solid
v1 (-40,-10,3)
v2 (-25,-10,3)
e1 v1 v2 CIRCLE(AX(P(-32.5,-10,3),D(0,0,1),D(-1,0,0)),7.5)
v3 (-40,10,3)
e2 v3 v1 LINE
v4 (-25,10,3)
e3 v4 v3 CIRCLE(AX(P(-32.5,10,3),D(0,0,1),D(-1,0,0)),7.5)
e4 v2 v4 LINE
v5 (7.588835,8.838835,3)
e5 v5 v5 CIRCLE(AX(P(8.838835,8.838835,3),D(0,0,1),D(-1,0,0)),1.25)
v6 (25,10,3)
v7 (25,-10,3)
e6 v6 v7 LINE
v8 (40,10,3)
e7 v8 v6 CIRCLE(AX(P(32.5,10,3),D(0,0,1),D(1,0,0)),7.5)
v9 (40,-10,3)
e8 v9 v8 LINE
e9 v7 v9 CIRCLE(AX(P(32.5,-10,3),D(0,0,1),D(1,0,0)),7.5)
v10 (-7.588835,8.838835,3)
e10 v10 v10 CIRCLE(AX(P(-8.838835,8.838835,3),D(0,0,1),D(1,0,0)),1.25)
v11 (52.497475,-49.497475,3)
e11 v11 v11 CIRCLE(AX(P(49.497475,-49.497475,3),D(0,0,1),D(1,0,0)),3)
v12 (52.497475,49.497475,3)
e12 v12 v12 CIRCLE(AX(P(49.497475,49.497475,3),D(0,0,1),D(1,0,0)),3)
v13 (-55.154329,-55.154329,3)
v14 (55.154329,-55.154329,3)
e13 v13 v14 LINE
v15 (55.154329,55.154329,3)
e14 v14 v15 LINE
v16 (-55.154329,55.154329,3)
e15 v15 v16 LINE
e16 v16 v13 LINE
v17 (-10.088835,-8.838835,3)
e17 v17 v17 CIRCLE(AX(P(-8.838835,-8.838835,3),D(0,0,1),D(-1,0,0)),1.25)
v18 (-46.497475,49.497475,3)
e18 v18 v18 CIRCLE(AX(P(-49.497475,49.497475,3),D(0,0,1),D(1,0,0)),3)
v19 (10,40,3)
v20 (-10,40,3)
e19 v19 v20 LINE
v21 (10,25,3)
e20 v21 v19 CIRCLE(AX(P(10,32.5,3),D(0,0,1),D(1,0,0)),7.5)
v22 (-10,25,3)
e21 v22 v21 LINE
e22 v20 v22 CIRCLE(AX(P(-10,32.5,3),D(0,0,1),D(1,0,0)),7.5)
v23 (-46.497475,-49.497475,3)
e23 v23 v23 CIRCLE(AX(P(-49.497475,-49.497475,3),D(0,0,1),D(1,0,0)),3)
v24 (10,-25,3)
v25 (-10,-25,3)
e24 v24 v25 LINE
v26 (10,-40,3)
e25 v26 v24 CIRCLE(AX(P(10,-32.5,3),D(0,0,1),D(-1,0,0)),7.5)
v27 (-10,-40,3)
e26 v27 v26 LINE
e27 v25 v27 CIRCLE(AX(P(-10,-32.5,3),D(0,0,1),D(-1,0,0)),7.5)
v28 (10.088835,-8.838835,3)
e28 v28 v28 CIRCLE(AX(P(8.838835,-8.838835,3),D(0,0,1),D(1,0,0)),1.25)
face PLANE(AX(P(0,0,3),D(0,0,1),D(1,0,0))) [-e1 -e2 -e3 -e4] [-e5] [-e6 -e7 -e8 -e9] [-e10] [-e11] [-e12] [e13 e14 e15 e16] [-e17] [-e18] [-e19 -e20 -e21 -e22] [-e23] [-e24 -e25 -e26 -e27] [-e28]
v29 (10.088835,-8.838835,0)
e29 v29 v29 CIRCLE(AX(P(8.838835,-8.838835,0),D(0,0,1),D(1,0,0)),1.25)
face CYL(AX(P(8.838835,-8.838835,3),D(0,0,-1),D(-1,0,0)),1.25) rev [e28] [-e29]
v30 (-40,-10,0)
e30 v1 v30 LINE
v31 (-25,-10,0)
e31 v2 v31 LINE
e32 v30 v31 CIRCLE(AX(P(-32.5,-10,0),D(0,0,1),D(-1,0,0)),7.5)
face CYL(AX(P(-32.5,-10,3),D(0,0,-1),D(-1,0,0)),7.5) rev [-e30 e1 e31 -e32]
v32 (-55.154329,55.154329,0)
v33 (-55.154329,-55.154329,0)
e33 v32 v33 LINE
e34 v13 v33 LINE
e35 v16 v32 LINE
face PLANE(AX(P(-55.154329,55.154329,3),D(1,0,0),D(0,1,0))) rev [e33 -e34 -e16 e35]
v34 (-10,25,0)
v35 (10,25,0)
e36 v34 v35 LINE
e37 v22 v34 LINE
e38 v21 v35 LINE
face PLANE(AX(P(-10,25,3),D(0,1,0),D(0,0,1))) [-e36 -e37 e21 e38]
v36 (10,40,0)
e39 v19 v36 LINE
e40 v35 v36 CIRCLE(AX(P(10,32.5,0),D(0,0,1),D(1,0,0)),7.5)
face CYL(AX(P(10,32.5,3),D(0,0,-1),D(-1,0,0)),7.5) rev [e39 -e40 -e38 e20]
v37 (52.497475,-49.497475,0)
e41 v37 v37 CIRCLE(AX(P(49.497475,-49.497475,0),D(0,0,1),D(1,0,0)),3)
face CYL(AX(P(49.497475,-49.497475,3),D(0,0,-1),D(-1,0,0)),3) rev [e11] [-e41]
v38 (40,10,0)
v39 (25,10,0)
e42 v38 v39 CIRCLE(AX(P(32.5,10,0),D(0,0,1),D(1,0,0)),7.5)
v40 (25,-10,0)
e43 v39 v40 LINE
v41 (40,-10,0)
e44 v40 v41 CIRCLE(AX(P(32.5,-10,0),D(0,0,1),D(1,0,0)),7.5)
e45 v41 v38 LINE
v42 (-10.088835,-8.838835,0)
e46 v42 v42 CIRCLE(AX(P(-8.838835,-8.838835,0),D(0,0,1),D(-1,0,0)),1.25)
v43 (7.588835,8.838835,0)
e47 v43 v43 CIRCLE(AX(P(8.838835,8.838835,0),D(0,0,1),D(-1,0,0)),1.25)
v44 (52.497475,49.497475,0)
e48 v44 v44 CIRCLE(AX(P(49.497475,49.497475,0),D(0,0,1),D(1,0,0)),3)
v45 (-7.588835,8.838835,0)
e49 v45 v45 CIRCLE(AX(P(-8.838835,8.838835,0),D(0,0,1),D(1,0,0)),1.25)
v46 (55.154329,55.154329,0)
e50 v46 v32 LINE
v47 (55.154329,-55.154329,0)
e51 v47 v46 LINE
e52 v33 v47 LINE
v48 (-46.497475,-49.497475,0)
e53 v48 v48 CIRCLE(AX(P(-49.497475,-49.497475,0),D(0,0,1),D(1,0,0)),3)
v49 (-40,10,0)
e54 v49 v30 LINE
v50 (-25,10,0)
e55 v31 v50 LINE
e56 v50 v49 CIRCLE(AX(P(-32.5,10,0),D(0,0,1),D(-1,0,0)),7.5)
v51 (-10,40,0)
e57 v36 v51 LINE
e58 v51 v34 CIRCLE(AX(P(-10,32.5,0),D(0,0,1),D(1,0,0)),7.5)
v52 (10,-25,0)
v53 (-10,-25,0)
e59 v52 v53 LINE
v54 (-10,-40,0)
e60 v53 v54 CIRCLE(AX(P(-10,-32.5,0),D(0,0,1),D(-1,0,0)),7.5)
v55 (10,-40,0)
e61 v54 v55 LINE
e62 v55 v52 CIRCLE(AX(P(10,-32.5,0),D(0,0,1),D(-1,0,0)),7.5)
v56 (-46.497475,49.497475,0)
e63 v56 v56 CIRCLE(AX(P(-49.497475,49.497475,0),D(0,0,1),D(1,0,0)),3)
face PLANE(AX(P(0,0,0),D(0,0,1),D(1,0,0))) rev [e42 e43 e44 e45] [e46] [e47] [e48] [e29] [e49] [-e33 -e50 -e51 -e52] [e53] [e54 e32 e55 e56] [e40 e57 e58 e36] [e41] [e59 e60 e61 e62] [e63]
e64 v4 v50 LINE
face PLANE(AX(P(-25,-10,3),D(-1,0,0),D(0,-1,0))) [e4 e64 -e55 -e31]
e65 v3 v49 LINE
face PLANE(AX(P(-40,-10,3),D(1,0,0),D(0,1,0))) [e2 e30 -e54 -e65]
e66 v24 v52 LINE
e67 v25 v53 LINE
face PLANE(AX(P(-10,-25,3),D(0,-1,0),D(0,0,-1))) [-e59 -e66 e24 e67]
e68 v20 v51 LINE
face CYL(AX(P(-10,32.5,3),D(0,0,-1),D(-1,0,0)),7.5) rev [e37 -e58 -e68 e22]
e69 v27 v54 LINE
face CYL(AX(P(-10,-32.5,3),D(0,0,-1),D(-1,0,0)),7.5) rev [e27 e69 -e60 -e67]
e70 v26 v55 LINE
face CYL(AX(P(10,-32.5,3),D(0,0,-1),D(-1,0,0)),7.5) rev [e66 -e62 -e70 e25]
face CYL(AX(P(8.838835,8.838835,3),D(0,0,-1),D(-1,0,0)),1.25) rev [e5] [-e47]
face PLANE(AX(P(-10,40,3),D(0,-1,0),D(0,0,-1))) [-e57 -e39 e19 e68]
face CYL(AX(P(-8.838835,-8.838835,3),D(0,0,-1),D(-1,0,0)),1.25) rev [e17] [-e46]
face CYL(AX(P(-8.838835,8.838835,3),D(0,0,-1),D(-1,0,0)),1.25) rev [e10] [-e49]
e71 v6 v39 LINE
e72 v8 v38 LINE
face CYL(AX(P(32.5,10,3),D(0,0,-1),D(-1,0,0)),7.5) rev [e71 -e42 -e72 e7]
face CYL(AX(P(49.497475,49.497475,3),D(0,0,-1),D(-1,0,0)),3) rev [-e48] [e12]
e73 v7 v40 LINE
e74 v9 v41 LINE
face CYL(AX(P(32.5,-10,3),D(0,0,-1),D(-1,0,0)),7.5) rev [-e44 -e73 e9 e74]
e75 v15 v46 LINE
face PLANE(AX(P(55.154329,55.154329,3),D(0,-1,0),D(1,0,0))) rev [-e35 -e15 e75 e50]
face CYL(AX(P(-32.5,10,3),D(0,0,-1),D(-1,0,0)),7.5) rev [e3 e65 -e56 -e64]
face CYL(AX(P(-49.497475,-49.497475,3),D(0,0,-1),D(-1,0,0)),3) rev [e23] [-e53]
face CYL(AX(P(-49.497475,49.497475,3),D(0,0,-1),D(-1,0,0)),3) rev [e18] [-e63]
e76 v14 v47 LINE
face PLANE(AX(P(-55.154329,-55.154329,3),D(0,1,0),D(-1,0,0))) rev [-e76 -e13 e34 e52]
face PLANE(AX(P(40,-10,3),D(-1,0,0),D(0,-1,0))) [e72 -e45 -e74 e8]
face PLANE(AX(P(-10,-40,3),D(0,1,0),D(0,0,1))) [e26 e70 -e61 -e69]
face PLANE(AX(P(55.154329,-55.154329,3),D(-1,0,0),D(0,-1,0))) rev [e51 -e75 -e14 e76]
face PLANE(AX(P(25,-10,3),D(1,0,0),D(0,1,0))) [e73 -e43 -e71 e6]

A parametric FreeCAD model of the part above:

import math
import FreeCAD as App
import Part
import Sketcher

doc = App.newDocument("Part")
body = doc.addObject("PartDesign::Body", "Body")

sketch1 = body.newObject("Sketcher::SketchObject", "Sketch")
sketch1.AttachmentSupport = (doc.getObject("XY_Plane"), [""])
sketch1.MapMode = "FlatFace"
sketch1.addGeometry([
    Part.LineSegment(App.Vector(-55.2, 55.2, 0), App.Vector(-55.2, -55.2, 0)),
    Part.LineSegment(App.Vector(-55.2, -55.2, 0), App.Vector(55.2, -55.2, 0)),
    Part.LineSegment(App.Vector(55.2, -55.2, 0), App.Vector(55.2, 55.2, 0)),
    Part.LineSegment(App.Vector(55.2, 55.2, 0), App.Vector(-55.2, 55.2, 0)),
    Part.Circle(App.Vector(-49.5, -49.5, 0), App.Vector(0, 0, 1), 3),
    Part.Circle(App.Vector(-8.8, -8.8, 0), App.Vector(0, 0, 1), 1.2),
    Part.LineSegment(App.Vector(10, -40, 0), App.Vector(-10, -40, 0)),
    Part.ArcOfCircle(Part.Circle(App.Vector(-10, -32.5, 0), App.Vector(0, 0, 1), 7.5), math.radians(90), math.radians(270)),
    Part.LineSegment(App.Vector(-10, -25, 0), App.Vector(10, -25, 0)),
    Part.ArcOfCircle(Part.Circle(App.Vector(10, -32.5, 0), App.Vector(0, 0, 1), 7.5), math.radians(-90), math.radians(90)),
    Part.Circle(App.Vector(49.5, -49.5, 0), App.Vector(0, 0, 1), 3),
    Part.Circle(App.Vector(8.8, -8.8, 0), App.Vector(0, 0, 1), 1.2),
    Part.LineSegment(App.Vector(-25, 10, 0), App.Vector(-25, -10, 0)),
    Part.ArcOfCircle(Part.Circle(App.Vector(-32.5, -10, 0), App.Vector(0, 0, 1), 7.5), math.radians(180), math.radians(360)),
    Part.LineSegment(App.Vector(-40, -10, 0), App.Vector(-40, 10, 0)),
    Part.ArcOfCircle(Part.Circle(App.Vector(-32.5, 10, 0), App.Vector(0, 0, 1), 7.5), math.radians(0), math.radians(180)),
    Part.Circle(App.Vector(-8.8, 8.8, 0), App.Vector(0, 0, 1), 1.2),
    Part.Circle(App.Vector(-49.5, 49.5, 0), App.Vector(0, 0, 1), 3),
    Part.Circle(App.Vector(8.8, 8.8, 0), App.Vector(0, 0, 1), 1.2),
    Part.ArcOfCircle(Part.Circle(App.Vector(32.5, -10, 0), App.Vector(0, 0, 1), 7.5), math.radians(180), math.radians(360)),
    Part.LineSegment(App.Vector(25, -10, 0), App.Vector(25, 10, 0)),
    Part.ArcOfCircle(Part.Circle(App.Vector(32.5, 10, 0), App.Vector(0, 0, 1), 7.5), math.radians(0), math.radians(180)),
    Part.LineSegment(App.Vector(40, 10, 0), App.Vector(40, -10, 0)),
    Part.ArcOfCircle(Part.Circle(App.Vector(-10, 32.5, 0), App.Vector(0, 0, 1), 7.5), math.radians(90), math.radians(270)),
    Part.LineSegment(App.Vector(-10, 40, 0), App.Vector(10, 40, 0)),
    Part.ArcOfCircle(Part.Circle(App.Vector(10, 32.5, 0), App.Vector(0, 0, 1), 7.5), math.radians(-90), math.radians(90)),
    Part.LineSegment(App.Vector(10, 25, 0), App.Vector(-10, 25, 0)),
    Part.Circle(App.Vector(49.5, 49.5, 0), App.Vector(0, 0, 1), 3),
], False)
sketch1.addConstraint([
    Sketcher.Constraint("Coincident", 0, 2, 1, 1),
    Sketcher.Constraint("Coincident", 1, 2, 2, 1),
    Sketcher.Constraint("Coincident", 2, 2, 3, 1),
    Sketcher.Constraint("Coincident", 3, 2, 0, 1),
    Sketcher.Constraint("Tangent", 6, 2, 7, 2),
    Sketcher.Constraint("Tangent", 7, 1, 8, 1),
    Sketcher.Constraint("Tangent", 8, 2, 9, 2),
    Sketcher.Constraint("Tangent", 9, 1, 6, 1),
    Sketcher.Constraint("Tangent", 12, 2, 13, 2),
    Sketcher.Constraint("Tangent", 13, 1, 14, 1),
    Sketcher.Constraint("Tangent", 14, 2, 15, 2),
    Sketcher.Constraint("Tangent", 15, 1, 12, 1),
    Sketcher.Constraint("Tangent", 19, 1, 20, 1),
    Sketcher.Constraint("Tangent", 20, 2, 21, 2),
    Sketcher.Constraint("Tangent", 21, 1, 22, 1),
    Sketcher.Constraint("Tangent", 22, 2, 19, 2),
    Sketcher.Constraint("Tangent", 23, 1, 24, 1),
    Sketcher.Constraint("Tangent", 24, 2, 25, 2),
    Sketcher.Constraint("Tangent", 25, 1, 26, 1),
    Sketcher.Constraint("Tangent", 26, 2, 23, 2),
    Sketcher.Constraint("Vertical", 0),
    Sketcher.Constraint("Horizontal", 1),
    Sketcher.Constraint("Vertical", 2),
    Sketcher.Constraint("Horizontal", 3),
    Sketcher.Constraint("Horizontal", 6),
    Sketcher.Constraint("Horizontal", 8),
    Sketcher.Constraint("Vertical", 12),
    Sketcher.Constraint("Vertical", 14),
    Sketcher.Constraint("Vertical", 20),
    Sketcher.Constraint("Vertical", 22),
    Sketcher.Constraint("Horizontal", 24),
    Sketcher.Constraint("Horizontal", 26),
    Sketcher.Constraint("Equal", 4, 10),
    Sketcher.Constraint("Equal", 5, 11),
    Sketcher.Constraint("Equal", 9, 13),
    Sketcher.Constraint("Equal", 11, 16),
    Sketcher.Constraint("Equal", 10, 17),
    Sketcher.Constraint("Equal", 16, 18),
    Sketcher.Constraint("Equal", 15, 19),
    Sketcher.Constraint("Equal", 21, 23),
    Sketcher.Constraint("Equal", 17, 27),
    Sketcher.Constraint("Symmetric", 11, 3, 16, 3, -1, 1),
    Sketcher.Constraint("Symmetric", 10, 3, 17, 3, -1, 1),
    Sketcher.Constraint("Symmetric", 5, 3, 18, 3, -1, 1),
    Sketcher.Constraint("Symmetric", 15, 3, 19, 3, -1, 1),
    Sketcher.Constraint("Symmetric", 9, 3, 23, 3, -1, 1),
    Sketcher.Constraint("Symmetric", 4, 3, 27, 3, -1, 1),
    Sketcher.Constraint("Symmetric", 0, 2, 2, 2, -1, 1),
    Sketcher.Constraint("Symmetric", 4, 3, 10, 3, -2),
    Sketcher.Constraint("Symmetric", 5, 3, 11, 3, -2),
    Sketcher.Constraint("Horizontal", 13, 3, 19, 3),
    Sketcher.Constraint("Horizontal", 15, 3, 21, 3),
    Sketcher.Constraint("Vertical", 7, 3, 23, 3),
    Sketcher.Constraint("Vertical", 9, 3, 25, 3),
    Sketcher.Constraint("Equal", 3, 0),
    Sketcher.Constraint("Equal", 26, 12),
    Sketcher.Constraint("Diameter", 4, 6.0),
    Sketcher.Constraint("Diameter", 5, 2.5),
    Sketcher.Constraint("Radius", 7, 7.5),
    Sketcher.Constraint("DistanceX", 6, 2, 6, 1, 20.0),
    Sketcher.Constraint("DistanceY", 6, 2, -1, 1, 40.0),
    Sketcher.Constraint("DistanceX", 12, 2, -1, 1, 25.0),
    Sketcher.Constraint("DistanceX", 1, 1, 1, 2, 110.308658),
    Sketcher.Constraint("DistanceX", 4, 3, 5, 3, 40.65864),
    Sketcher.Constraint("DistanceY", 4, 3, 5, 3, 40.65864),
    Sketcher.Constraint("DistanceX", 5, 3, 10, 3, 58.336309),
    Sketcher.Constraint("DistanceY", 5, 3, 16, 3, 17.67767),
])
pad1 = body.newObject("PartDesign::Pad", "Pad")
pad1.Profile = sketch1
pad1.Length = 3

doc.recompute()
